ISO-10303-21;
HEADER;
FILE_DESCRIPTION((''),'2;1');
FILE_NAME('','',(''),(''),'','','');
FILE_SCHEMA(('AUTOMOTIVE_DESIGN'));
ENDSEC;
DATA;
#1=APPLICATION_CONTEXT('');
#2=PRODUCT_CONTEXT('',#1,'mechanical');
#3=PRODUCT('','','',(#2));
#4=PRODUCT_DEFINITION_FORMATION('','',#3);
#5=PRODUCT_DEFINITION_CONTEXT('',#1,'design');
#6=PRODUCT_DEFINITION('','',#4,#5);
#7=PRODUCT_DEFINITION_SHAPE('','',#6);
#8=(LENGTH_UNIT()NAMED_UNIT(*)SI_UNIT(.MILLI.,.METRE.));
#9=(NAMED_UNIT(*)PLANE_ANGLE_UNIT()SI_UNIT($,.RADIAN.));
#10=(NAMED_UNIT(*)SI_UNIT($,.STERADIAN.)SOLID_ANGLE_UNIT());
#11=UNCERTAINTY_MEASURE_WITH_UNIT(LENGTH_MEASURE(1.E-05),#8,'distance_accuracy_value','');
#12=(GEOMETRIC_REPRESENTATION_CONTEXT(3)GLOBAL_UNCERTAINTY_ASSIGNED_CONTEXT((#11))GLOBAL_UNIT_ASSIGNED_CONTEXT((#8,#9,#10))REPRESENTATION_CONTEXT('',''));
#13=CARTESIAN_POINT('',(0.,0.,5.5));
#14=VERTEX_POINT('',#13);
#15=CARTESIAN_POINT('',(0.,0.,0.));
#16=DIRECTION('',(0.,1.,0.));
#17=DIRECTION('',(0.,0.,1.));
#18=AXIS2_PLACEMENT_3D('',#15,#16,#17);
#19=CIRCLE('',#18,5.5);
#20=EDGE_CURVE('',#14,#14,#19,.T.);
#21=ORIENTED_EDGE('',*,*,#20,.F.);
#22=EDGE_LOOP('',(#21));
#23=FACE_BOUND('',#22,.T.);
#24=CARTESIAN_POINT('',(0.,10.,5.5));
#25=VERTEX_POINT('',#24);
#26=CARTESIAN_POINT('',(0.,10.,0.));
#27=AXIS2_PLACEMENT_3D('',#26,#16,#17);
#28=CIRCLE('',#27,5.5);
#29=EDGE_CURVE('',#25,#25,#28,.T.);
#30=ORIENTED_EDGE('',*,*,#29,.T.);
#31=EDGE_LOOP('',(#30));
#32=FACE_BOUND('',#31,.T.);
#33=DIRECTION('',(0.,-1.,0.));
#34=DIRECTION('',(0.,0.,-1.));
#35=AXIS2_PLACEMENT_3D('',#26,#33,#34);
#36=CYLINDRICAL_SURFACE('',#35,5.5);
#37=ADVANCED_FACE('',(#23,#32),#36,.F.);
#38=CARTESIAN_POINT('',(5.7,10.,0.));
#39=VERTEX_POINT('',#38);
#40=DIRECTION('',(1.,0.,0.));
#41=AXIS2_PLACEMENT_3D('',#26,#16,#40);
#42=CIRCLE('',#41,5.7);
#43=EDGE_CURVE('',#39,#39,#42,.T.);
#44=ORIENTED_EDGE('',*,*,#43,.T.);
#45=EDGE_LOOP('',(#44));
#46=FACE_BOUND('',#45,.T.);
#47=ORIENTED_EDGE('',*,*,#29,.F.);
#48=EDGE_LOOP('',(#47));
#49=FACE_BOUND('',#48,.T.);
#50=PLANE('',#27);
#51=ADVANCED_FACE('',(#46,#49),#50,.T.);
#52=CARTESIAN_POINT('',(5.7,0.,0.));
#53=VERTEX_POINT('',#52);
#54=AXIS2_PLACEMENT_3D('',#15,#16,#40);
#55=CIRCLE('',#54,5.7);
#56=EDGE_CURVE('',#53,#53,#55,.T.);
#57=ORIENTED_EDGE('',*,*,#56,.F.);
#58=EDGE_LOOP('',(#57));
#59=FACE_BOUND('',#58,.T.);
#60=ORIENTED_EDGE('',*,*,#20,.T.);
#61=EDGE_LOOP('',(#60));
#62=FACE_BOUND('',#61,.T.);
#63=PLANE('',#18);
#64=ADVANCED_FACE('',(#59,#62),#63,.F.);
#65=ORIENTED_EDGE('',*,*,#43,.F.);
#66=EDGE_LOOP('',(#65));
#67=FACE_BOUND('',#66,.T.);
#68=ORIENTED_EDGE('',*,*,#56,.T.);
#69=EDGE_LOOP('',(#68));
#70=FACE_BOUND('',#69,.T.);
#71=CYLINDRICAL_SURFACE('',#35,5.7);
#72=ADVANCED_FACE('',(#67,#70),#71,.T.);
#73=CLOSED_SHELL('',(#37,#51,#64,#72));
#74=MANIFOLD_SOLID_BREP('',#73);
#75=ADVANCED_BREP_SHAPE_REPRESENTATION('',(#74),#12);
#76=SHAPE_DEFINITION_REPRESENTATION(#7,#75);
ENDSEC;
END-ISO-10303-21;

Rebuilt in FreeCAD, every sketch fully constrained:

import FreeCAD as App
import Part
import Sketcher
Q = App.Units.Quantity

doc = App.newDocument("Part")
body = doc.addObject("PartDesign::Body", "Body")

# Sketch on XZ plane
sketch1 = body.newObject("Sketcher::SketchObject", "Sketch")
sketch1.AttachmentSupport = (doc.getObject("XZ_Plane"), [""])
sketch1.MapMode = "FlatFace"
sketch1.addGeometry(Part.Circle(App.Vector(0, 0, 0), App.Vector(0, 0, 1), 6), False)
sketch1.addGeometry(Part.Circle(App.Vector(0, 0, 0), App.Vector(0, 0, 1), 6), False)
sketch1.addConstraint(Sketcher.Constraint("Coincident", 0, 3, -1, 1))
sketch1.addConstraint(Sketcher.Constraint("Coincident", 1, 3, -1, 1))
sketch1.addConstraint(Sketcher.Constraint("Diameter", 1, Q("11 mm")))
sketch1.addConstraint(Sketcher.Constraint("Diameter", 0, Q("11.4 mm")))
pad1 = body.newObject("PartDesign::Pad", "Pad")
pad1.Profile = sketch1
pad1.Length = 10
pad1.Reversed = True

doc.recompute()
